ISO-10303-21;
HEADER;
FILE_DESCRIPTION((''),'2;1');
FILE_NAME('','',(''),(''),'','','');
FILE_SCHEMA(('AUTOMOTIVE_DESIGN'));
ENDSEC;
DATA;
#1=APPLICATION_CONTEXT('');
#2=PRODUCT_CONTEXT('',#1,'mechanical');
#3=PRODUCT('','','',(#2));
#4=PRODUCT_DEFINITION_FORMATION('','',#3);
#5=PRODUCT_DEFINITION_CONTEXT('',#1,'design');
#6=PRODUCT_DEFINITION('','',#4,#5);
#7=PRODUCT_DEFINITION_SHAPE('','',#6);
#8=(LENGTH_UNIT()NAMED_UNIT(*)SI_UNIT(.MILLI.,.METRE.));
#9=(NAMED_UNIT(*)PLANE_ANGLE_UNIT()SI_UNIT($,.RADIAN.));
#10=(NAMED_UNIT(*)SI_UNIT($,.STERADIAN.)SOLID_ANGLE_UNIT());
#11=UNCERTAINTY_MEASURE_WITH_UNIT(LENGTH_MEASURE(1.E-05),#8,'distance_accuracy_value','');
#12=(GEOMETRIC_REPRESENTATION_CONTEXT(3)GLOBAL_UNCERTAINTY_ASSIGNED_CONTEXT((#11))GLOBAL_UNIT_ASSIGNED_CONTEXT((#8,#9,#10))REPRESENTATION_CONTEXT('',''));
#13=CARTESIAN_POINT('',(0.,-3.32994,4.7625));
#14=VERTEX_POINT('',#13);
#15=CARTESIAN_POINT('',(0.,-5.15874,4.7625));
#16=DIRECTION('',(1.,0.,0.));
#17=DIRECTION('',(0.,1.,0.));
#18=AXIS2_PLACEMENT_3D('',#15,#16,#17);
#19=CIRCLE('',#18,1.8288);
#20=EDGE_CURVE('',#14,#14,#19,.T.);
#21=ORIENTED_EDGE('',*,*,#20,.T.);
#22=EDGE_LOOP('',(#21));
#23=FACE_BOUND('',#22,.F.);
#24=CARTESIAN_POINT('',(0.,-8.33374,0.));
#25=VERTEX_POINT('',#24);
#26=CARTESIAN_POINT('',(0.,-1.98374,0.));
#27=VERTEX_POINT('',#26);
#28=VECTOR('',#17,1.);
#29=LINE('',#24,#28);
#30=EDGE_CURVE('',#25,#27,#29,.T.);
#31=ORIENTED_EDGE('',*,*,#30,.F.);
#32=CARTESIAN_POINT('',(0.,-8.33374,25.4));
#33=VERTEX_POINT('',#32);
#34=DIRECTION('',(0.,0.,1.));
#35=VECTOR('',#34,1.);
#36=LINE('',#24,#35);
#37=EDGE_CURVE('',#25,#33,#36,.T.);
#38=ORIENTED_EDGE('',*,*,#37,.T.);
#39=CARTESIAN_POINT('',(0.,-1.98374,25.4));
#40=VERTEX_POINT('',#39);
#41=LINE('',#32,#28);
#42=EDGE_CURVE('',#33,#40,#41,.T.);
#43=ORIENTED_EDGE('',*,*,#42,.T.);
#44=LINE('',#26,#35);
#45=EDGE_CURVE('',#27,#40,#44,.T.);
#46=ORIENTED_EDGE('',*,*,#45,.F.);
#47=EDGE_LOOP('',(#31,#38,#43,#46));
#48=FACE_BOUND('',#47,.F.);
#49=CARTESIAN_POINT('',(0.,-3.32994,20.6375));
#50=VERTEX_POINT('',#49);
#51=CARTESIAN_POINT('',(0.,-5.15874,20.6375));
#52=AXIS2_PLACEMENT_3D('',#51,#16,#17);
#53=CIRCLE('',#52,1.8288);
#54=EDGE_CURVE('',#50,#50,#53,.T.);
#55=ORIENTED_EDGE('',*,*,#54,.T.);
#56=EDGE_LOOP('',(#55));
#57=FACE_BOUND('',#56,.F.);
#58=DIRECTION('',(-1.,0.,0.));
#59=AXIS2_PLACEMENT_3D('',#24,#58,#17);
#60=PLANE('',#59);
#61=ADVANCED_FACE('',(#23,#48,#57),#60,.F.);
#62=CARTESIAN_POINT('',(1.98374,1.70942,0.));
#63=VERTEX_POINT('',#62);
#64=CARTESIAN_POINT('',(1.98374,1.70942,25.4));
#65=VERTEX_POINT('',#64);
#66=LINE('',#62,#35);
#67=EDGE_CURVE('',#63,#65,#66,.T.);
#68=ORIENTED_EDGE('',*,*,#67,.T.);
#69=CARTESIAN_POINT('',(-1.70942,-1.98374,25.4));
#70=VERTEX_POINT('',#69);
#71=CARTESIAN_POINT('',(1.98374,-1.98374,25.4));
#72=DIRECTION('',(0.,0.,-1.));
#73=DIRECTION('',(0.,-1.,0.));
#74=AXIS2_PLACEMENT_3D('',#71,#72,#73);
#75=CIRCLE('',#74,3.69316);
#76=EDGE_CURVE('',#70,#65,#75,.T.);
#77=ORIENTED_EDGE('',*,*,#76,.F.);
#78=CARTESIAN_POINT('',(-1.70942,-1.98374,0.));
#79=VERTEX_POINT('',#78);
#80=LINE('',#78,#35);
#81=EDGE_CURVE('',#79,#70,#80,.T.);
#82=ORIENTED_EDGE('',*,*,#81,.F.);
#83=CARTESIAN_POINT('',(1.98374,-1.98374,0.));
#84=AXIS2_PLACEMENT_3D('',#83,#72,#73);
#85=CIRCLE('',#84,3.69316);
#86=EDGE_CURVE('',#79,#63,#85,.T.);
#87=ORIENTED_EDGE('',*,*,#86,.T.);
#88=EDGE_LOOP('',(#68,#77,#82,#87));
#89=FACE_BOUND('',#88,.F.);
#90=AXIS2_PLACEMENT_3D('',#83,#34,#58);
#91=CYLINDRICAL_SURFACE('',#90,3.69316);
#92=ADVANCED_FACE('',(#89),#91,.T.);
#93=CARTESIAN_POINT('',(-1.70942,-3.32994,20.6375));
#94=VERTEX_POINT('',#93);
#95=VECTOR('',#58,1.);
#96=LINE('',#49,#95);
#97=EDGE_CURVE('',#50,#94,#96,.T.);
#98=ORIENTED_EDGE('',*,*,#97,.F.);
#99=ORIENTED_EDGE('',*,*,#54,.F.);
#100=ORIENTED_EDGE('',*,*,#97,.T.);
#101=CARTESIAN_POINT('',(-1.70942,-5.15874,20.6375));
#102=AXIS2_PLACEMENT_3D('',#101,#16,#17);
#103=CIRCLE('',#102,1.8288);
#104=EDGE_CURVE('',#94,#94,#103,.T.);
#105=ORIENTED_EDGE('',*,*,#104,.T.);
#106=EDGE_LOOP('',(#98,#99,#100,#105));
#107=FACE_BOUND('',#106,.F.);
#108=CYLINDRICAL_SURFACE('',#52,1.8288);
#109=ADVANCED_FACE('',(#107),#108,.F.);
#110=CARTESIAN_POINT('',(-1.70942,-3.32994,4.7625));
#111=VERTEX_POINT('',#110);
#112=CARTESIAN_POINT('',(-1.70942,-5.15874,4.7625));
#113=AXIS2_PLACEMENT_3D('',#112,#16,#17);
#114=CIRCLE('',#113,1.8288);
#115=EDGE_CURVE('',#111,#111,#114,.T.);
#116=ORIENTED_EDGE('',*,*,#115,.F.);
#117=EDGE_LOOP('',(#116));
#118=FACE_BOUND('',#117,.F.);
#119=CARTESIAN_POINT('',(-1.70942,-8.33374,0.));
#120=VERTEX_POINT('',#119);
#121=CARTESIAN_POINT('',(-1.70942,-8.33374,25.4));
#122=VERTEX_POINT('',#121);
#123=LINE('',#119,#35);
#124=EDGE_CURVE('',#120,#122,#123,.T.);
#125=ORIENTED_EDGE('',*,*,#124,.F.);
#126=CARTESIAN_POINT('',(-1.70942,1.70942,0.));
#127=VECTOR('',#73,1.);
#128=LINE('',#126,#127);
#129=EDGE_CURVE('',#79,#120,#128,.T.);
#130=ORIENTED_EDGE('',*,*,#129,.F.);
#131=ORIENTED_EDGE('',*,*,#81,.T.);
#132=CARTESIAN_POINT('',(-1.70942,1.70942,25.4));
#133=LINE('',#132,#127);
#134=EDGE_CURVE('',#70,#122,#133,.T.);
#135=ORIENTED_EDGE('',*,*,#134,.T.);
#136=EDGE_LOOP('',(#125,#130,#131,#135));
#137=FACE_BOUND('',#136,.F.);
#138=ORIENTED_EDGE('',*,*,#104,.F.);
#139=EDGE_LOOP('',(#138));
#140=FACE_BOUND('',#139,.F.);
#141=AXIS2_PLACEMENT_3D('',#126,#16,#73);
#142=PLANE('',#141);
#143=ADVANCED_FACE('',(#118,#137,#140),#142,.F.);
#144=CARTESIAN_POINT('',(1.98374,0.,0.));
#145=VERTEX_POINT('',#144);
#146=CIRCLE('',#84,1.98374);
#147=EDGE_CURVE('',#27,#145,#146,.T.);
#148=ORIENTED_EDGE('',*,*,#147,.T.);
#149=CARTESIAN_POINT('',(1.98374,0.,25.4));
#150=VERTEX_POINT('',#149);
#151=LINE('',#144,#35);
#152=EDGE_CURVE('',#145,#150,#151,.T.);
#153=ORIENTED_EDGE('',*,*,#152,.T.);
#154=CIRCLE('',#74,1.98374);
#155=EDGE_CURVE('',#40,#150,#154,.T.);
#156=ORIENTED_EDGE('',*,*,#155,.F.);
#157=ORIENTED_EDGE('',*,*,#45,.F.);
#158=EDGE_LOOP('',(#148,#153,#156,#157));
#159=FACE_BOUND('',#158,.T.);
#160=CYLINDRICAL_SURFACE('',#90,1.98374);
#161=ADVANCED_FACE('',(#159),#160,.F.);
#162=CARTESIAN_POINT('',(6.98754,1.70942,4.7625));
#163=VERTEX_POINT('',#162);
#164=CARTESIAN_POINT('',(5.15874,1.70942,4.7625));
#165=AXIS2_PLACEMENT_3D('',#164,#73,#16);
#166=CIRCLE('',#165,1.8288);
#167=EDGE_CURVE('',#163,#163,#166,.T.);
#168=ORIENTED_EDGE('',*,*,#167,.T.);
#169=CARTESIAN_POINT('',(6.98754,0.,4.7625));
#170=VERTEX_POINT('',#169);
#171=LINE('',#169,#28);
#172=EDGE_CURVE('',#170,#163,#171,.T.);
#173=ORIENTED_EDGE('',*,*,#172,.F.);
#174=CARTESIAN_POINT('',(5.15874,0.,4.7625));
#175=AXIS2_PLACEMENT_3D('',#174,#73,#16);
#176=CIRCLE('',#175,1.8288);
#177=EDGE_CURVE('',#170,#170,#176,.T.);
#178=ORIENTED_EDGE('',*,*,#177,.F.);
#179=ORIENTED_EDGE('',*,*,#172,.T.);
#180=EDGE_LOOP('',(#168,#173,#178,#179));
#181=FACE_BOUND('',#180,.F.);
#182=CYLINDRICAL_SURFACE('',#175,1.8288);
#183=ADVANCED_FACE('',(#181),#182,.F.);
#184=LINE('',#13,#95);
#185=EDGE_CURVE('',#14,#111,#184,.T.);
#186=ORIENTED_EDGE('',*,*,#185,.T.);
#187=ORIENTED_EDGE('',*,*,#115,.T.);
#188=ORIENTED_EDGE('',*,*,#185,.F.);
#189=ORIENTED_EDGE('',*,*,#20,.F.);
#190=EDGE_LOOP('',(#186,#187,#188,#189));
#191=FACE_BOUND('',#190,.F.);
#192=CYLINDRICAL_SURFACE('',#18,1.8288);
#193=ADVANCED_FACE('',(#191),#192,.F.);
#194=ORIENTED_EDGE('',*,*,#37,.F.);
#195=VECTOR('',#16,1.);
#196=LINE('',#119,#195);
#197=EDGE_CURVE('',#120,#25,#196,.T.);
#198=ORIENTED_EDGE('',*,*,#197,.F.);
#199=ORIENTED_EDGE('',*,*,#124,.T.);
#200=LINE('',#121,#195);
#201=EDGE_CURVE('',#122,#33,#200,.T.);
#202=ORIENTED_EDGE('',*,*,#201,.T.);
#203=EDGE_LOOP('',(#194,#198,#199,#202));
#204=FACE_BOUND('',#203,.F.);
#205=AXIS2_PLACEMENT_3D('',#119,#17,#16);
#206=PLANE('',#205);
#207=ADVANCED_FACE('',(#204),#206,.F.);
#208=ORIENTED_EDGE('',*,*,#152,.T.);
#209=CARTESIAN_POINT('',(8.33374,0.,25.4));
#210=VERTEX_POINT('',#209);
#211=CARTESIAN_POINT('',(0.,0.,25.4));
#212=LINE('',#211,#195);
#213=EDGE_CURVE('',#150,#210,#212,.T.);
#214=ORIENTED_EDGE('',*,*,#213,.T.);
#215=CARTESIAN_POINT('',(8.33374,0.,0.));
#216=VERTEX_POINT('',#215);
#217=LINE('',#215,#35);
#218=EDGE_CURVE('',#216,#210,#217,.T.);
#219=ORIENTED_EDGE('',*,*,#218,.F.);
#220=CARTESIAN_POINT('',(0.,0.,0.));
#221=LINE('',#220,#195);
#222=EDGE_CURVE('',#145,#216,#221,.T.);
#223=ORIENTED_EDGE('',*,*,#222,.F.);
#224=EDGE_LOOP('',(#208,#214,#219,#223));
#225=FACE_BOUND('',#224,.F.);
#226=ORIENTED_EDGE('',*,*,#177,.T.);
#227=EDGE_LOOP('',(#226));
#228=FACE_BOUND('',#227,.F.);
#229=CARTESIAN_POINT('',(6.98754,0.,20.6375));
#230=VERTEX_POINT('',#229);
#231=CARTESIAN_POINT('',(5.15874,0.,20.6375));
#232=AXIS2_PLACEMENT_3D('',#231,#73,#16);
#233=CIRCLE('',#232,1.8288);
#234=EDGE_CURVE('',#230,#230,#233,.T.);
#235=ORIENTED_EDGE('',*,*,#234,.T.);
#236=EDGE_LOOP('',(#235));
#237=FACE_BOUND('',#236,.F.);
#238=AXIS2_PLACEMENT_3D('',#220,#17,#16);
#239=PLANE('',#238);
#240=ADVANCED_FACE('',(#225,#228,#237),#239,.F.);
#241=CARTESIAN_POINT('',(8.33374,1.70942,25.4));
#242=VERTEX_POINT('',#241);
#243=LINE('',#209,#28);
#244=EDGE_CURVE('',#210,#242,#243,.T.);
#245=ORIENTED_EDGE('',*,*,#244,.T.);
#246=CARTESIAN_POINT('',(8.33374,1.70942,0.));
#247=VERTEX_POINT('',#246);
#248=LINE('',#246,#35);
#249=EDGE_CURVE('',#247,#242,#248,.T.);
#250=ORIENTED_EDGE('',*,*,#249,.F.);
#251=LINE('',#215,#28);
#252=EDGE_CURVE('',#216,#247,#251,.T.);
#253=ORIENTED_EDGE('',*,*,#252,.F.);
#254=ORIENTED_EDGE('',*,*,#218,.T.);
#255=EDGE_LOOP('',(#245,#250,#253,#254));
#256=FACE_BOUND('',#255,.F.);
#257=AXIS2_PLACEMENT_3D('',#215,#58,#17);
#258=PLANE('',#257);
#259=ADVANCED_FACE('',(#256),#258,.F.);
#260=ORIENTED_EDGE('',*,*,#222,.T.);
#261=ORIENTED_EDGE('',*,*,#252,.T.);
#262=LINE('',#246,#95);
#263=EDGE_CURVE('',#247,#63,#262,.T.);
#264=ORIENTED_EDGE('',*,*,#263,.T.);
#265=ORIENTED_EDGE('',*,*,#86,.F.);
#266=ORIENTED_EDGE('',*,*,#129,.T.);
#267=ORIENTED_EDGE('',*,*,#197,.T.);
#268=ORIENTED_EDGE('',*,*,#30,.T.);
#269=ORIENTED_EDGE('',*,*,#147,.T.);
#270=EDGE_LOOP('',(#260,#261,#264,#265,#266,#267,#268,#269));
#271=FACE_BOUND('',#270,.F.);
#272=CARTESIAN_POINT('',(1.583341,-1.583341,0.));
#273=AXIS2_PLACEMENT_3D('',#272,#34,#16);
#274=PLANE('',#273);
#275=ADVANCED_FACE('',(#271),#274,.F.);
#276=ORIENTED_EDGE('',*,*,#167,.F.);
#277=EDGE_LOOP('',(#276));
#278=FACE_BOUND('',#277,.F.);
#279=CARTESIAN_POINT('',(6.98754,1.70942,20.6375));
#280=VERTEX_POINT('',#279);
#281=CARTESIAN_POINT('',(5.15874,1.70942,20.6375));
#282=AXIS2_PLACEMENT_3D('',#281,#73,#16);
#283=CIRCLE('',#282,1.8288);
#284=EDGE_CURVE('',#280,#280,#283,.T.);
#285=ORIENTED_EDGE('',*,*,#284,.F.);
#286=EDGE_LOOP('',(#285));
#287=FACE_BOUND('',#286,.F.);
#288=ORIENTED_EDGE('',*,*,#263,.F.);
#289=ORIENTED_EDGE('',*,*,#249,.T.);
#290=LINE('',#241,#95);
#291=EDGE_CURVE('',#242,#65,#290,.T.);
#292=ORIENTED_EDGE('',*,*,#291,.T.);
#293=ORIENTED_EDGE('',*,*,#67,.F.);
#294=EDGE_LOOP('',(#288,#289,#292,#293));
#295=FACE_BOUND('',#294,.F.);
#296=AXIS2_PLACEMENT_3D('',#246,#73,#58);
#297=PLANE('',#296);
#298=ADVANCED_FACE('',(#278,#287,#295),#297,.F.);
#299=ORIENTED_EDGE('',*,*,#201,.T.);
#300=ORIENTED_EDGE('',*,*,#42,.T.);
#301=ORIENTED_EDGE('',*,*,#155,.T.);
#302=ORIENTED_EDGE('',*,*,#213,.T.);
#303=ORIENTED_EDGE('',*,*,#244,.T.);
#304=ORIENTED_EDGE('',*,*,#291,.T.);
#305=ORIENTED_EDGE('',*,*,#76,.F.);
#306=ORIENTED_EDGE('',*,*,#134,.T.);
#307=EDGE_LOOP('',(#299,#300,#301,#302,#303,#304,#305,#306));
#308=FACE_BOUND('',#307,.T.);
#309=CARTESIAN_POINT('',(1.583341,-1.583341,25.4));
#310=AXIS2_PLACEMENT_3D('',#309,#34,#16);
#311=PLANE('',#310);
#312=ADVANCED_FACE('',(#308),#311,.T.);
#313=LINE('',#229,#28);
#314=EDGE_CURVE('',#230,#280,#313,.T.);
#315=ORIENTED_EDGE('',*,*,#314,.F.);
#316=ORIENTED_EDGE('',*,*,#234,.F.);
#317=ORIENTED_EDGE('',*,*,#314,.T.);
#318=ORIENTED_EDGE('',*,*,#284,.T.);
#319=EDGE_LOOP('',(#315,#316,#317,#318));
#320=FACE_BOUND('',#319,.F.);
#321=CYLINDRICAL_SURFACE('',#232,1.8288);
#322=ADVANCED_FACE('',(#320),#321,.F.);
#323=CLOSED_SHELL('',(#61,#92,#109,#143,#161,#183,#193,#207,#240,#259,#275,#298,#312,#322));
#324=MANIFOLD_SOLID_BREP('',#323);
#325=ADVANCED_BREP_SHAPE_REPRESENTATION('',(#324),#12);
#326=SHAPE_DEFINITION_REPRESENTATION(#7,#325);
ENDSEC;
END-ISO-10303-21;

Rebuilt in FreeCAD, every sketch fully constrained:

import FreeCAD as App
import Part
import Sketcher
from FreeCAD import Vector
Q = App.Units.Quantity


def edges_at(feature, points):
    """Names of the edges that pass closest to the given points."""
    edges = feature.Shape.Edges
    near = lambda p: min(range(len(edges)), key=lambda i: edges[i].distToShape(Part.Vertex(*p))[0])
    return sorted({f"Edge{near(p) + 1}" for p in points})

doc = App.newDocument("Part")
body = doc.addObject("PartDesign::Body", "Body")

# Sketch on XY plane
sketch1 = body.newObject("Sketcher::SketchObject", "Sketch")
sketch1.AttachmentSupport = (doc.getObject("XY_Plane"), [""])
sketch1.MapMode = "FlatFace"
sketch1.addGeometry([
    Part.LineSegment(Vector(-1.7, -8.3, 0), Vector(0, -8.3, 0)),  # 0
    Part.LineSegment(Vector(0, -8.3, 0), Vector(0, 0, 0)),  # 1
    Part.LineSegment(Vector(0, 0, 0), Vector(8.3, 0, 0)),  # 2
    Part.LineSegment(Vector(8.3, 0, 0), Vector(8.3, 1.7, 0)),  # 3
    Part.LineSegment(Vector(8.3, 1.7, 0), Vector(-1.7, 1.7, 0)),  # 4
    Part.LineSegment(Vector(-1.7, 1.7, 0), Vector(-1.7, -8.3, 0)),  # 5
], False)
sketch1.addConstraint([
    Sketcher.Constraint("Coincident", 0, 2, 1, 1),
    Sketcher.Constraint("Coincident", 1, 2, 2, 1),
    Sketcher.Constraint("Coincident", 2, 2, 3, 1),
    Sketcher.Constraint("Coincident", 3, 2, 4, 1),
    Sketcher.Constraint("Coincident", 4, 2, 5, 1),
    Sketcher.Constraint("Coincident", 5, 2, 0, 1),
    Sketcher.Constraint("Horizontal", 0),
    Sketcher.Constraint("Vertical", 1),
    Sketcher.Constraint("Horizontal", 2),
    Sketcher.Constraint("Vertical", 3),
    Sketcher.Constraint("Horizontal", 4),
    Sketcher.Constraint("Vertical", 5),
    Sketcher.Constraint("Coincident", 1, 2, -1, 1),
    Sketcher.Constraint("Equal", 2, 1),
    Sketcher.Constraint("Equal", 0, 3),
    Sketcher.Constraint("DistanceX", 0, 1, 0, 2, Q("0.0673 in")),
    Sketcher.Constraint("DistanceX", 2, 1, 2, 2, Q("0.3281 in")),
])
pad1 = body.newObject("PartDesign::Pad", "Pad")
pad1.Profile = sketch1
pad1.Length = Q("1 in")

# Sketch on XZ plane
sketch2 = body.newObject("Sketcher::SketchObject", "Sketch001")
sketch2.AttachmentSupport = (doc.getObject("XZ_Plane"), [""])
sketch2.MapMode = "FlatFace"
sketch2.addGeometry([
    Part.Circle(Vector(5.2, 20.6, 0), Vector(0, 0, 1), 1.8),
    Part.Circle(Vector(5.2, 4.8, 0), Vector(0, 0, 1), 1.8),
], False)
sketch2.addConstraint([
    Sketcher.Constraint("Equal", 0, 1),
    Sketcher.Constraint("Vertical", 0, 3, 1, 3),
    Sketcher.Constraint("Diameter", 0, Q("0.144 in")),
    Sketcher.Constraint("DistanceY", -1, 1, 0, 3, Q("0.8125 in")),
    Sketcher.Constraint("DistanceY", -1, 1, 1, 3, Q("0.1875 in")),
    Sketcher.Constraint("DistanceX", -1, 1, 0, 3, Q("0.2031 in")),
])
pocket1 = body.newObject("PartDesign::Pocket", "Pocket")
pocket1.Profile = sketch2
pocket1.Type = "ThroughAll"

# Sketch on YZ plane
sketch3 = body.newObject("Sketcher::SketchObject", "Sketch002")
sketch3.AttachmentSupport = (doc.getObject("YZ_Plane"), [""])
sketch3.MapMode = "FlatFace"
sketch3.addGeometry([
    Part.Circle(Vector(-5.2, 20.6, 0), Vector(0, 0, 1), 1.8),
    Part.Circle(Vector(-5.2, 4.8, 0), Vector(0, 0, 1), 1.8),
], False)
sketch3.addConstraint([
    Sketcher.Constraint("Equal", 0, 1),
    Sketcher.Constraint("Vertical", 0, 3, 1, 3),
    Sketcher.Constraint("Diameter", 0, Q("0.144 in")),
    Sketcher.Constraint("DistanceY", -1, 1, 0, 3, Q("0.8125 in")),
    Sketcher.Constraint("DistanceY", -1, 1, 1, 3, Q("0.1875 in")),
    Sketcher.Constraint("DistanceX", 0, 3, -1, 1, Q("0.2031 in")),
])
pocket2 = body.newObject("PartDesign::Pocket", "Pocket001")
pocket2.Profile = sketch3
pocket2.Type = "ThroughAll"
doc.recompute()

fillet = body.newObject("PartDesign::Fillet", "Fillet")
fillet.Base = (pocket2, edges_at(pocket2, [(0, 0, 12.7)]))
fillet.Radius = Q("0.0781 in")
doc.recompute()

fillet2 = body.newObject("PartDesign::Fillet", "Fillet001")
fillet2.Base = (fillet, edges_at(fillet, [(-1.709, 1.709, 12.7)]))
fillet2.Radius = Q("0.1454 in")

doc.recompute()
